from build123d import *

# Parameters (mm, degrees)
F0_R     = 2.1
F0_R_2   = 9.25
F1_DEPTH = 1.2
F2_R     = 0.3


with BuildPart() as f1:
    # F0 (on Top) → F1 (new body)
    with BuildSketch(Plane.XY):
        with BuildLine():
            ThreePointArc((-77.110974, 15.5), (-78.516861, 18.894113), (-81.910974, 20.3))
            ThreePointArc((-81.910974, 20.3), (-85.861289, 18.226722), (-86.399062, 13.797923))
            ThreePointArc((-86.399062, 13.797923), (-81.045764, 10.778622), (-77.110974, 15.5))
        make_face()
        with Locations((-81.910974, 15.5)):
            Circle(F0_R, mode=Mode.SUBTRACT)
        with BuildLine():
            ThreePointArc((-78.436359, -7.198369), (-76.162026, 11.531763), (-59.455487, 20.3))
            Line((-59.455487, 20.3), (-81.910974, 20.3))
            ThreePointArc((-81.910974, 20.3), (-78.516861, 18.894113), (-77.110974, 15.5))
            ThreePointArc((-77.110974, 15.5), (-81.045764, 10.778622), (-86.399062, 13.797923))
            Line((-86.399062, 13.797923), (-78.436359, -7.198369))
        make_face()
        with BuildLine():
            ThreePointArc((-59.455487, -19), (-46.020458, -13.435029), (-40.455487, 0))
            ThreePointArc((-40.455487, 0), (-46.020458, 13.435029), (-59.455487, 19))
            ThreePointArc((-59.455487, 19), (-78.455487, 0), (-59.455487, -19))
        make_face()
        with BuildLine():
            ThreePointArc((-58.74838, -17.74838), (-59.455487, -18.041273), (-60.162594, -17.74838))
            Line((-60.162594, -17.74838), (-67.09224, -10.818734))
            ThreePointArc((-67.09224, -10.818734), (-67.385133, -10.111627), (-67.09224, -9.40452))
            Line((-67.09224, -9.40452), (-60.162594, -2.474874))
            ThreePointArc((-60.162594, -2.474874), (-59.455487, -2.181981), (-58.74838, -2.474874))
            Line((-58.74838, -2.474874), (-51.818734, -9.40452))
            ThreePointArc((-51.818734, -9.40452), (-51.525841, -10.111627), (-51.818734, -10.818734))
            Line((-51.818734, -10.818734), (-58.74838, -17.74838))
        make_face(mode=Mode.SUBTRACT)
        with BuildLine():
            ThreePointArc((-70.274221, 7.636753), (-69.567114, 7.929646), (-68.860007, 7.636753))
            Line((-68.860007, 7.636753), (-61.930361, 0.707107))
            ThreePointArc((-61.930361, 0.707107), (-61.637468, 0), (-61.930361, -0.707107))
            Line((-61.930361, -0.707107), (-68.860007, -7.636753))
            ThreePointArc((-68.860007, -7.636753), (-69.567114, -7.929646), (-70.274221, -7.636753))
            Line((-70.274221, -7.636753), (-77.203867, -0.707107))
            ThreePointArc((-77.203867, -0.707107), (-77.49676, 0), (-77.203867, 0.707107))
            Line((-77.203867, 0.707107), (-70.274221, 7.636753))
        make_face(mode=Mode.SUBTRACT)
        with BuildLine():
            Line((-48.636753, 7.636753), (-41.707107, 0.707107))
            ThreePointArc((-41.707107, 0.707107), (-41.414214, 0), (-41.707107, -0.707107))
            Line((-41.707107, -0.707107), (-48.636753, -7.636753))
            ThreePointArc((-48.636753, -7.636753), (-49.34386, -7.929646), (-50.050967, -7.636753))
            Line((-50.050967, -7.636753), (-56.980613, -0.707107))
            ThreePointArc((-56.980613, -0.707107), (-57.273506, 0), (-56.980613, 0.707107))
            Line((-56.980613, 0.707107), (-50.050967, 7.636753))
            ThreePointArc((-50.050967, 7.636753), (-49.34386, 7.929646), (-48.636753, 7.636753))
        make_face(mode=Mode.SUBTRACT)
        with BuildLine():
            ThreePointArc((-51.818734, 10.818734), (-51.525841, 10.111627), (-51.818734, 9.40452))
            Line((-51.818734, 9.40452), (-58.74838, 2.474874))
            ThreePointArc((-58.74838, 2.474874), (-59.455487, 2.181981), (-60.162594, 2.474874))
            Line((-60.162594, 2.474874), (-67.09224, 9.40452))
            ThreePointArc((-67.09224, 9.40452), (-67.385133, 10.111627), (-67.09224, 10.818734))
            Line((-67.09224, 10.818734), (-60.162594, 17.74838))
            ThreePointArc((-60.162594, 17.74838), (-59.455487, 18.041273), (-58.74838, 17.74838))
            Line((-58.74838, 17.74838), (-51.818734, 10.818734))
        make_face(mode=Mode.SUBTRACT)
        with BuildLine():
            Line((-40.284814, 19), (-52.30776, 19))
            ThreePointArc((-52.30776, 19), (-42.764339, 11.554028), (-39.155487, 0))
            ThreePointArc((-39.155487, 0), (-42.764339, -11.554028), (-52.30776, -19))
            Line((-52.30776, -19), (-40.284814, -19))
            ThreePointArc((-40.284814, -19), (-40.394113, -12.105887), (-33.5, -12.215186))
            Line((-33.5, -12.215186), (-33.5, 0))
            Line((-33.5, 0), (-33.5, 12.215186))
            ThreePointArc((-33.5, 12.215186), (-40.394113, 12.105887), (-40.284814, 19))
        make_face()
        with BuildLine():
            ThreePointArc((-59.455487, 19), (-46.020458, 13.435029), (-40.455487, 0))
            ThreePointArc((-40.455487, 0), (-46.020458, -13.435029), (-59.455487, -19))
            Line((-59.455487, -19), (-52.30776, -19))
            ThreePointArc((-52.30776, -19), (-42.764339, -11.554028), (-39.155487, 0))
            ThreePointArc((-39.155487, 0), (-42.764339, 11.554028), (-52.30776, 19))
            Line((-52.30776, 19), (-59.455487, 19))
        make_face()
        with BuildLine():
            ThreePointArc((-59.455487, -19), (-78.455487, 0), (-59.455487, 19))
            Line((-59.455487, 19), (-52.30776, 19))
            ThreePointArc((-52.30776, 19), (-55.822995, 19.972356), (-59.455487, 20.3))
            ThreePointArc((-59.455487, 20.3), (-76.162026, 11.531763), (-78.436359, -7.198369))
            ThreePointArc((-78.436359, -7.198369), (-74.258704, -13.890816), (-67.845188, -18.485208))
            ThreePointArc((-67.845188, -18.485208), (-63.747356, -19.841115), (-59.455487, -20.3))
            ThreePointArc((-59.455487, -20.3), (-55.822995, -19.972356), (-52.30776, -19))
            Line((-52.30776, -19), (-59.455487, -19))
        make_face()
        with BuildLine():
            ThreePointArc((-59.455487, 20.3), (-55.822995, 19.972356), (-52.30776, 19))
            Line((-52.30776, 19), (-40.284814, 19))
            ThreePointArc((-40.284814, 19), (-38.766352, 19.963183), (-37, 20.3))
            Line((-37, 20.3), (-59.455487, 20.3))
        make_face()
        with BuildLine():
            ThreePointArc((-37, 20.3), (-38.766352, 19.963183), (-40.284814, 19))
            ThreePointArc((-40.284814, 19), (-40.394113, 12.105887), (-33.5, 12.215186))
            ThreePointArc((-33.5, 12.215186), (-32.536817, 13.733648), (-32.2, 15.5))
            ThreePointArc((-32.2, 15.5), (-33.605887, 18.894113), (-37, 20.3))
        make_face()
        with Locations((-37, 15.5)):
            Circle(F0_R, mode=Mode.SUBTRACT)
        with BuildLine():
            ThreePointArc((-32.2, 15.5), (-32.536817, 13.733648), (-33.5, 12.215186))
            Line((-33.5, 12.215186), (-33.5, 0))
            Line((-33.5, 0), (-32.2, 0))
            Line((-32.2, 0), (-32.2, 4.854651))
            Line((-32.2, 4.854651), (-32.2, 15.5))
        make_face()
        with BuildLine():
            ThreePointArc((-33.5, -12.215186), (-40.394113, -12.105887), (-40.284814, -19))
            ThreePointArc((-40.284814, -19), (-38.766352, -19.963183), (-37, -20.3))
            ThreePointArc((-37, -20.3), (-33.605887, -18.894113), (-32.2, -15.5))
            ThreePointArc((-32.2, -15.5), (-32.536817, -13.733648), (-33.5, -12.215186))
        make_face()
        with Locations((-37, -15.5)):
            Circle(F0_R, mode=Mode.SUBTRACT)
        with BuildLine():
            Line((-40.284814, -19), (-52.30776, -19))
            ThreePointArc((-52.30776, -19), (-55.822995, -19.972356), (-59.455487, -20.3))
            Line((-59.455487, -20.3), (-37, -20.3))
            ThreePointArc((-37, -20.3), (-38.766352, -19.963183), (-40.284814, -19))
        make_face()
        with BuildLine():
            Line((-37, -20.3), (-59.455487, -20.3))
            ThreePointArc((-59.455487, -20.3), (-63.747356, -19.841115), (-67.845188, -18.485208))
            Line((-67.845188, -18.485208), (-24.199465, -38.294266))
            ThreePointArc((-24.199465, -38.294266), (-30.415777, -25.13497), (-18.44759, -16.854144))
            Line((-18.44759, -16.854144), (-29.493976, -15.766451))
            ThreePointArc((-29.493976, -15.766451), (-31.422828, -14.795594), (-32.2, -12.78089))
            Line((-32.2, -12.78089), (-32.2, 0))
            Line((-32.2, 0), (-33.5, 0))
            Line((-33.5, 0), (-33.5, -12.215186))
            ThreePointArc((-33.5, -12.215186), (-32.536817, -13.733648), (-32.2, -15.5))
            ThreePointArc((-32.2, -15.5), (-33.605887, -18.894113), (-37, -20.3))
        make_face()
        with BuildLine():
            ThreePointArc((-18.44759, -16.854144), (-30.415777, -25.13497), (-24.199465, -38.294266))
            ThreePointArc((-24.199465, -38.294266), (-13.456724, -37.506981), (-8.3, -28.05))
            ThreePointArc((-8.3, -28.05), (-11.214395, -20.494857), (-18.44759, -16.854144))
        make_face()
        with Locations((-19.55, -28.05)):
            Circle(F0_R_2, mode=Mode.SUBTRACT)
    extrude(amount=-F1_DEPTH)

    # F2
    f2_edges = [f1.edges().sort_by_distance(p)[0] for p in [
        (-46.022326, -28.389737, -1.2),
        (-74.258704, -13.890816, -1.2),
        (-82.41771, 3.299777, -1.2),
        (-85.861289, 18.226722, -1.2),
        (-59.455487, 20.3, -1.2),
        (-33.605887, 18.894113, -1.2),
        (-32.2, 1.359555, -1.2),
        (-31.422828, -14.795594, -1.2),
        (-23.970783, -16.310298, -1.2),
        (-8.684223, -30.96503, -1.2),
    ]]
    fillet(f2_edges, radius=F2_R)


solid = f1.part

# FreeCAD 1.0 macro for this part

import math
import FreeCAD as App
import Part
import Sketcher
from FreeCAD import Vector
Q = App.Units.Quantity


def edges_at(feature, points):
    """Names of the edges that pass closest to the given points."""
    edges = feature.Shape.Edges
    near = lambda p: min(range(len(edges)), key=lambda i: edges[i].distToShape(Part.Vertex(*p))[0])
    return sorted({f"Edge{near(p) + 1}" for p in points})

doc = App.newDocument("Part")
params = doc.addObject("Spreadsheet::Sheet", "Params")
for row, (alias, value) in enumerate([
    ("sketch1_radius", "3 mm"),
    ("sketch1_radius2", "1.000001 mm"),
    ("sketch1_diameter", "18.5 mm"),
    ("sketch1_diameter2", "4.2 mm"),
    ("sketch1_radius3", "4.8 mm"),
    ("pad1_length", "1.2 mm"),
    ("fillet_radius", "0.3 mm"),
], start=1):
    params.set(f"A{row}", alias)
    params.set(f"B{row}", "=" + value)
    params.setAlias(f"B{row}", alias)

body = doc.addObject("PartDesign::Body", "Body")

sketch1 = doc.addObject("Sketcher::SketchObject", "Sketch")
body.addObject(sketch1)
sketch1.AttachmentSupport = (doc.XY_Plane, [""])
sketch1.MapMode = "FlatFace"
sketch1.addGeometry([
    Part.ArcOfCircle(Part.Circle(Vector(-81.910974, 15.5, 0), Vector(0, 0, 1), 4.8), math.radians(89.999997), math.radians(200.768896)),
    Part.LineSegment(Vector(-86.399062, 13.797923, 0), Vector(-78.436359, -7.198369, 0)),
    Part.ArcOfCircle(Part.Circle(Vector(-59.455486, 0.000002, 0), Vector(0, 0, 1), 20.300002), math.radians(-159.231099), math.radians(-114.411409)),
    Part.LineSegment(Vector(-67.845188, -18.485208, 0), Vector(-24.199465, -38.294266, 0)),
    Part.ArcOfCircle(Part.Circle(Vector(-19.55, -28.05, 0), Vector(0, 0, 1), 11.25), math.radians(-114.411407), math.radians(-0.000001)),
    Part.ArcOfCircle(Part.Circle(Vector(-19.55, -28.05, 0), Vector(0, 0, 1), 11.25), math.radians(0.000002), math.radians(84.376446)),
    Part.LineSegment(Vector(-18.44759, -16.854144, 0), Vector(-29.493976, -15.766451, 0)),
    Part.ArcOfCircle(Part.Circle(Vector(-29.2, -12.780889, 0), Vector(0, 0, 1), 3), math.radians(-179.99998), math.radians(-95.623561)),
    Part.LineSegment(Vector(-32.2, -12.78089, 0), Vector(-32.2, 15.5, 0)),
    Part.ArcOfCircle(Part.Circle(Vector(-36.999998, 15.500002, 0), Vector(0, 0, 1), 4.799998), math.radians(-0.000018), math.radians(90.000018)),
    Part.LineSegment(Vector(-37, 20.3, 0), Vector(-81.910974, 20.3, 0)),
    Part.LineSegment(Vector(-51.818734, -10.818734, 0), Vector(-58.74838, -17.74838, 0)),
    Part.ArcOfCircle(Part.Circle(Vector(-59.455487, -17.041272, 0), Vector(0, 0, 1), 1.000001), math.radians(-134.999957), math.radians(-45.000043)),
    Part.LineSegment(Vector(-60.162594, -17.74838, 0), Vector(-67.09224, -10.818734, 0)),
    Part.ArcOfCircle(Part.Circle(Vector(-66.385132, -10.111627, 0), Vector(0, 0, 1), 1.000001), math.radians(135.000043), math.radians(224.999957)),
    Part.LineSegment(Vector(-67.09224, -9.40452, 0), Vector(-60.162594, -2.474874, 0)),
    Part.ArcOfCircle(Part.Circle(Vector(-59.455487, -3.181982, 0), Vector(0, 0, 1), 1.000001), math.radians(45.000043), math.radians(134.999957)),
    Part.LineSegment(Vector(-58.74838, -2.474874, 0), Vector(-51.818734, -9.40452, 0)),
    Part.ArcOfCircle(Part.Circle(Vector(-52.525842, -10.111627, 0), Vector(0, 0, 1), 1.000001), math.radians(-44.999957), math.radians(44.999957)),
    Part.Circle(Vector(-19.55, -28.05, 0), Vector(0, 0, 1), 9.25),
    Part.Circle(Vector(-37, -15.5, 0), Vector(0, 0, 1), 2.1),
    Part.LineSegment(Vector(-77.203867, 0.707107, 0), Vector(-70.274221, 7.636753, 0)),
    Part.ArcOfCircle(Part.Circle(Vector(-69.567114, 6.929645, 0), Vector(0, 0, 1), 1.000001), math.radians(45.000043), math.radians(134.999957)),
    Part.LineSegment(Vector(-68.860007, 7.636753, 0), Vector(-61.930361, 0.707107, 0)),
    Part.ArcOfCircle(Part.Circle(Vector(-62.637469, 0, 0), Vector(0, 0, 1), 1.000001), math.radians(-44.999957), math.radians(44.999957)),
    Part.LineSegment(Vector(-61.930361, -0.707107, 0), Vector(-68.860007, -7.636753, 0)),
    Part.ArcOfCircle(Part.Circle(Vector(-69.567114, -6.929645, 0), Vector(0, 0, 1), 1.000001), math.radians(-134.999957), math.radians(-45.000043)),
    Part.LineSegment(Vector(-70.274221, -7.636753, 0), Vector(-77.203867, -0.707107, 0)),
    Part.ArcOfCircle(Part.Circle(Vector(-76.496759, 0, 0), Vector(0, 0, 1), 1.000001), math.radians(135.000043), math.radians(224.999957)),
    Part.ArcOfCircle(Part.Circle(Vector(-49.34386, 6.929645, 0), Vector(0, 0, 1), 1.000001), math.radians(45.000043), math.radians(134.999957)),
    Part.LineSegment(Vector(-48.636753, 7.636753, 0), Vector(-41.707107, 0.707107, 0)),
    Part.ArcOfCircle(Part.Circle(Vector(-42.414215, 0, 0), Vector(0, 0, 1), 1.000001), math.radians(-44.999957), math.radians(44.999957)),
    Part.LineSegment(Vector(-41.707107, -0.707107, 0), Vector(-48.636753, -7.636753, 0)),
    Part.ArcOfCircle(Part.Circle(Vector(-49.34386, -6.929645, 0), Vector(0, 0, 1), 1.000001), math.radians(-134.999957), math.radians(-45.000043)),
    Part.LineSegment(Vector(-50.050967, -7.636753, 0), Vector(-56.980613, -0.707107, 0)),
    Part.ArcOfCircle(Part.Circle(Vector(-56.273505, 0, 0), Vector(0, 0, 1), 1.000001), math.radians(135.000043), math.radians(224.999957)),
    Part.LineSegment(Vector(-56.980613, 0.707107, 0), Vector(-50.050967, 7.636753, 0)),
    Part.Circle(Vector(-81.910974, 15.5, 0), Vector(0, 0, 1), 2.1),
    Part.ArcOfCircle(Part.Circle(Vector(-59.455487, 17.041272, 0), Vector(0, 0, 1), 1.000001), math.radians(45.000043), math.radians(134.999957)),
    Part.LineSegment(Vector(-58.74838, 17.74838, 0), Vector(-51.818734, 10.818734, 0)),
    Part.ArcOfCircle(Part.Circle(Vector(-52.525842, 10.111627, 0), Vector(0, 0, 1), 1.000001), math.radians(-44.999957), math.radians(44.999957)),
    Part.LineSegment(Vector(-51.818734, 9.40452, 0), Vector(-58.74838, 2.474874, 0)),
    Part.ArcOfCircle(Part.Circle(Vector(-59.455487, 3.181982, 0), Vector(0, 0, 1), 1.000001), math.radians(-134.999957), math.radians(-45.000043)),
    Part.LineSegment(Vector(-60.162594, 2.474874, 0), Vector(-67.09224, 9.40452, 0)),
    Part.ArcOfCircle(Part.Circle(Vector(-66.385132, 10.111627, 0), Vector(0, 0, 1), 1.000001), math.radians(135.000043), math.radians(224.999957)),
    Part.LineSegment(Vector(-67.09224, 10.818734, 0), Vector(-60.162594, 17.74838, 0)),
    Part.Circle(Vector(-37, 15.5, 0), Vector(0, 0, 1), 2.1),
], False)
sketch1.addConstraint([
    Sketcher.Constraint("Tangent", 0, 2, 1, 1),
    Sketcher.Constraint("Tangent", 1, 2, 2, 1),
    Sketcher.Constraint("Tangent", 2, 2, 3, 1),
    Sketcher.Constraint("Tangent", 3, 2, 4, 1),
    Sketcher.Constraint("Tangent", 4, 2, 5, 1),
    Sketcher.Constraint("Tangent", 5, 2, 6, 1),
    Sketcher.Constraint("Tangent", 6, 2, 7, 2),
    Sketcher.Constraint("Tangent", 7, 1, 8, 1),
    Sketcher.Constraint("Tangent", 8, 2, 9, 1),
    Sketcher.Constraint("Tangent", 9, 2, 10, 1),
    Sketcher.Constraint("Tangent", 10, 2, 0, 1),
    Sketcher.Constraint("Tangent", 11, 2, 12, 2),
    Sketcher.Constraint("Tangent", 12, 1, 13, 1),
    Sketcher.Constraint("Tangent", 13, 2, 14, 2),
    Sketcher.Constraint("Tangent", 14, 1, 15, 1),
    Sketcher.Constraint("Tangent", 15, 2, 16, 2),
    Sketcher.Constraint("Tangent", 16, 1, 17, 1),
    Sketcher.Constraint("Tangent", 17, 2, 18, 2),
    Sketcher.Constraint("Tangent", 18, 1, 11, 1),
    Sketcher.Constraint("Tangent", 21, 2, 22, 2),
    Sketcher.Constraint("Tangent", 22, 1, 23, 1),
    Sketcher.Constraint("Tangent", 23, 2, 24, 2),
    Sketcher.Constraint("Tangent", 24, 1, 25, 1),
    Sketcher.Constraint("Tangent", 25, 2, 26, 2),
    Sketcher.Constraint("Tangent", 26, 1, 27, 1),
    Sketcher.Constraint("Tangent", 27, 2, 28, 2),
    Sketcher.Constraint("Tangent", 28, 1, 21, 1),
    Sketcher.Constraint("Tangent", 29, 1, 30, 1),
    Sketcher.Constraint("Tangent", 30, 2, 31, 2),
    Sketcher.Constraint("Tangent", 31, 1, 32, 1),
    Sketcher.Constraint("Tangent", 32, 2, 33, 2),
    Sketcher.Constraint("Tangent", 33, 1, 34, 1),
    Sketcher.Constraint("Tangent", 34, 2, 35, 2),
    Sketcher.Constraint("Tangent", 35, 1, 36, 1),
    Sketcher.Constraint("Tangent", 36, 2, 29, 2),
    Sketcher.Constraint("Tangent", 38, 1, 39, 1),
    Sketcher.Constraint("Tangent", 39, 2, 40, 2),
    Sketcher.Constraint("Tangent", 40, 1, 41, 1),
    Sketcher.Constraint("Tangent", 41, 2, 42, 2),
    Sketcher.Constraint("Tangent", 42, 1, 43, 1),
    Sketcher.Constraint("Tangent", 43, 2, 44, 2),
    Sketcher.Constraint("Tangent", 44, 1, 45, 1),
    Sketcher.Constraint("Tangent", 45, 2, 38, 2),
    Sketcher.Constraint("Vertical", 8),
    Sketcher.Constraint("Horizontal", 10),
    Sketcher.Constraint("Coincident", 19, 3, 4, 3),
    Sketcher.Constraint("Coincident", 37, 3, 0, 3),
    Sketcher.Constraint("Coincident", 46, 3, 9, 3),
    Sketcher.Constraint("Equal", 4, 5),
    Sketcher.Constraint("Equal", 0, 9),
    Sketcher.Constraint("Equal", 12, 14),
    Sketcher.Constraint("Equal", 14, 16),
    Sketcher.Constraint("Equal", 16, 18),
    Sketcher.Constraint("Equal", 18, 22),
    Sketcher.Constraint("Equal", 22, 24),
    Sketcher.Constraint("Equal", 24, 26),
    Sketcher.Constraint("Equal", 26, 28),
    Sketcher.Constraint("Equal", 28, 29),
    Sketcher.Constraint("Equal", 29, 31),
    Sketcher.Constraint("Equal", 31, 33),
    Sketcher.Constraint("Equal", 33, 35),
    Sketcher.Constraint("Equal", 20, 37),
    Sketcher.Constraint("Equal", 35, 38),
    Sketcher.Constraint("Equal", 38, 40),
    Sketcher.Constraint("Equal", 40, 42),
    Sketcher.Constraint("Equal", 42, 44),
    Sketcher.Constraint("Equal", 37, 46),
    Sketcher.Constraint("Symmetric", 9, 3, 20, 3, -1),
    Sketcher.Constraint("Symmetric", 22, 3, 26, 3, -1),
    Sketcher.Constraint("Symmetric", 29, 3, 33, 3, -1),
    Sketcher.Constraint("Symmetric", 12, 3, 38, 3, -1),
    Sketcher.Constraint("Symmetric", 18, 3, 40, 3, -1),
    Sketcher.Constraint("Symmetric", 16, 3, 42, 3, -1),
    Sketcher.Constraint("Symmetric", 14, 3, 44, 3, -1),
    Sketcher.Constraint("PointOnObject", 2, 3, -1),
    Sketcher.Constraint("PointOnObject", 24, 3, -1),
    Sketcher.Constraint("PointOnObject", 28, 3, -1),
    Sketcher.Constraint("PointOnObject", 31, 3, -1),
    Sketcher.Constraint("PointOnObject", 35, 3, -1),
    Sketcher.Constraint("Perpendicular", 11, 13),
    Sketcher.Constraint("Perpendicular", 13, 15),
    Sketcher.Constraint("Perpendicular", 15, 17),
    Sketcher.Constraint("Perpendicular", 17, 21),
    Sketcher.Constraint("Perpendicular", 21, 23),
    Sketcher.Constraint("Perpendicular", 23, 25),
    Sketcher.Constraint("Parallel", 27, 30),
    Sketcher.Constraint("Perpendicular", 32, 34),
    Sketcher.Constraint("Horizontal", 14, 3, 18, 3),
    Sketcher.Constraint("Horizontal", 22, 3, 29, 3),
    Sketcher.Constraint("Horizontal", 19, 3, 4, 2),
    Sketcher.Constraint("Vertical", 2, 3, 12, 3),
    Sketcher.Constraint("Equal", 17, 21),
    Sketcher.Constraint("Radius", 7, Q("3 mm")),
    Sketcher.Constraint("Radius", 12, Q("1.000001 mm")),
    Sketcher.Constraint("Diameter", 19, Q("18.5 mm")),
    Sketcher.Constraint("Diameter", 20, Q("4.2 mm")),
    Sketcher.Constraint("Radius", 0, Q("4.8 mm")),
    Sketcher.Constraint("Radius", 2, Q("20.300002 mm")),
    Sketcher.Constraint("Radius", 4, Q("11.25 mm")),
    Sketcher.Constraint("DistanceX", 9, 3, -1, 1, Q("36.999998 mm")),
    Sketcher.Constraint("Distance", 11, Q("9.799999 mm")),
    Sketcher.Constraint("DistanceY", -1, 1, 0, 3, Q("15.5 mm")),
    Sketcher.Constraint("DistanceX", 4, 2, -1, 1, Q("8.3 mm")),
    Sketcher.Constraint("DistanceY", 4, 3, -1, 1, Q("28.05 mm")),
    Sketcher.Constraint("DistanceY", 8, 1, 8, 2, Q("28.28089 mm")),
    Sketcher.Constraint("DistanceX", 10, 2, 10, 1, Q("44.910974 mm")),
    Sketcher.Constraint("DistanceY", 12, 3, -1, 1, Q("17.041272 mm")),
    Sketcher.Constraint("DistanceX", 14, 3, -1, 1, Q("66.385132 mm")),
    Sketcher.Constraint("DistanceX", 24, 3, -1, 1, Q("62.637469 mm")),
    Sketcher.Constraint("DistanceX", 29, 3, -1, 1, Q("49.34386 mm")),
])
sketch1.setExpression("Constraints[92]", "Params.sketch1_radius")
sketch1.setExpression("Constraints[93]", "Params.sketch1_radius2")
sketch1.setExpression("Constraints[94]", "Params.sketch1_diameter")
sketch1.setExpression("Constraints[95]", "Params.sketch1_diameter2")
sketch1.setExpression("Constraints[96]", "Params.sketch1_radius3")
pad1 = doc.addObject("PartDesign::Pad", "Pad")
body.addObject(pad1)
pad1.Profile = sketch1
pad1.setExpression("Length", "Params.pad1_length")
pad1.Reversed = True
doc.recompute()

fillet = doc.addObject("PartDesign::Fillet", "Fillet")
body.addObject(fillet)
fillet.Base = (pad1, edges_at(pad1, [
    (-46.022, -28.39, -1.2),
    (-74.259, -13.891, -1.2),
    (-82.418, 3.3, -1.2),
    (-85.861, 18.227, -1.2),
    (-59.455, 20.3, -1.2),
    (-33.606, 18.894, -1.2),
    (-32.2, 1.36, -1.2),
    (-31.423, -14.796, -1.2),
    (-23.971, -16.31, -1.2),
    (-13.457, -37.507, -1.2),
]))
fillet.setExpression("Radius", "Params.fillet_radius")

doc.recompute()
